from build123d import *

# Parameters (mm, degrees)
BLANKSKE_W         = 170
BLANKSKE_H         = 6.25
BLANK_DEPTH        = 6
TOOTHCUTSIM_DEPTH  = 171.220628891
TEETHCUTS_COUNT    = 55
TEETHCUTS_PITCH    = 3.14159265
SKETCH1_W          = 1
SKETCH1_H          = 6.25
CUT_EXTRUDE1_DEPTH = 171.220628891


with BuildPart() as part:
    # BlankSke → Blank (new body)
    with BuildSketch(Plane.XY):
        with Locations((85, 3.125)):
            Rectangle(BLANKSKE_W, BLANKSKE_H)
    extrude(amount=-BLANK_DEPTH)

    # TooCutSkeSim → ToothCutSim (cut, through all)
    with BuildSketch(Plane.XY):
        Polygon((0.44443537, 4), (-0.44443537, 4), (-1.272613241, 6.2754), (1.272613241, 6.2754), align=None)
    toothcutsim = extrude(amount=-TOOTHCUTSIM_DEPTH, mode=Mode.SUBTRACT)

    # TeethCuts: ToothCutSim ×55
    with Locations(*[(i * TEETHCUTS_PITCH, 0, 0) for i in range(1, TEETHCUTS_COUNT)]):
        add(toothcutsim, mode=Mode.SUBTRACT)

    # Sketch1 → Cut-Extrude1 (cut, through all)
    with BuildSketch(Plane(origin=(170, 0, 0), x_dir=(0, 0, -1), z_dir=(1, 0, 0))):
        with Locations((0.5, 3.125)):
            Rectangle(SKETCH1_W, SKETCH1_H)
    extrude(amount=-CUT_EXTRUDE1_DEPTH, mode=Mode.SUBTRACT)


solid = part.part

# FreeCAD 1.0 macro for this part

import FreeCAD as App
import Part
import Sketcher
Q = App.Units.Quantity


def add_polygon(sketch, points):
    """Adds a closed chain of lines whose ends are joined by coincident constraints."""
    first, n = sketch.GeometryCount, len(points)
    for a, b in zip(points, points[1:] + points[:1]):
        sketch.addGeometry(Part.LineSegment(App.Vector(*a, 0), App.Vector(*b, 0)), False)
    for i in range(n):
        sketch.addConstraint(Sketcher.Constraint("Coincident", first + i, 2, first + (i + 1) % n, 1))

doc = App.newDocument("Part")
body = doc.addObject("PartDesign::Body", "Body")

# Sketch on XY plane
sketch1 = doc.addObject("Sketcher::SketchObject", "Sketch")
body.addObject(sketch1)
sketch1.AttachmentSupport = (doc.XY_Plane, [""])
sketch1.MapMode = "FlatFace"
add_polygon(sketch1, [(0, 6.25), (0, 0), (170, 0), (170, 6.25)])  # lines 0-3
sketch1.addConstraint([
    Sketcher.Constraint("Vertical", 0),
    Sketcher.Constraint("Horizontal", 1),
    Sketcher.Constraint("Vertical", 2),
    Sketcher.Constraint("Horizontal", 3),
    Sketcher.Constraint("Coincident", 0, 2, -1, 1),
    Sketcher.Constraint("DistanceX", 1, 1, 1, 2, Q("170 mm")),
    Sketcher.Constraint("DistanceY", 0, 2, 0, 1, Q("6.25 mm")),
])
pad1 = doc.addObject("PartDesign::Pad", "Pad")
body.addObject(pad1)
pad1.Profile = sketch1
pad1.Length = 6
pad1.Reversed = True

# Sketch on XY plane
sketch2 = doc.addObject("Sketcher::SketchObject", "Sketch001")
body.addObject(sketch2)
sketch2.AttachmentSupport = (doc.XY_Plane, [""])
sketch2.MapMode = "FlatFace"
add_polygon(sketch2, [(-0.444435, 4), (0.444435, 4), (1.272613, 6.2754), (-1.272613, 6.2754)])  # lines 0-3
sketch2.addConstraint([
    Sketcher.Constraint("Horizontal", 0),
    Sketcher.Constraint("Horizontal", 2),
    Sketcher.Constraint("Equal", 1, 3),
    Sketcher.Constraint("Angle", 1, Q("70 deg")),
    Sketcher.Constraint("DistanceY", -1, 1, 0, 2, Q("4 mm")),
    Sketcher.Constraint("DistanceX", 0, 1, 0, 2, Q("0.888871 mm")),
    Sketcher.Constraint("DistanceY", -1, 1, 1, 2, Q("6.2754 mm")),
    Sketcher.Constraint("DistanceX", -1, 1, 0, 2, Q("0.444435 mm")),
])
pocket1 = doc.addObject("PartDesign::Pocket", "Pocket")
body.addObject(pocket1)
pocket1.Profile = sketch2
pocket1.Type = "ThroughAll"
doc.recompute()

linearpattern = doc.addObject("PartDesign::LinearPattern", "LinearPattern")
body.addObject(linearpattern)
linearpattern.Originals = [pocket1]
linearpattern.Direction = (doc.X_Axis, [""])
linearpattern.Mode = "offset"
linearpattern.Offset = 3.141593
linearpattern.Occurrences = 55
body.Tip = linearpattern

# Sketch on YZ plane
sketch3 = doc.addObject("Sketcher::SketchObject", "Sketch002")
body.addObject(sketch3)
sketch3.AttachmentSupport = (doc.YZ_Plane, [""])
sketch3.MapMode = "FlatFace"
sketch3.AttachmentOffset = App.Placement(App.Vector(0, 0, 170), App.Rotation())
add_polygon(sketch3, [(6.25, 0), (0, 0), (0, -1), (6.25, -1)])  # lines 0-3
sketch3.addConstraint([
    Sketcher.Constraint("Horizontal", 0),
    Sketcher.Constraint("Vertical", 1),
    Sketcher.Constraint("Horizontal", 2),
    Sketcher.Constraint("Vertical", 3),
    Sketcher.Constraint("Coincident", 0, 2, -1, 1),
    Sketcher.Constraint("DistanceY", 1, 2, 1, 1, Q("1 mm")),
    Sketcher.Constraint("DistanceX", 0, 2, 0, 1, Q("6.25 mm")),
])
pocket2 = doc.addObject("PartDesign::Pocket", "Pocket001")
body.addObject(pocket2)
pocket2.Profile = sketch3
pocket2.Type = "ThroughAll"

doc.recompute()
